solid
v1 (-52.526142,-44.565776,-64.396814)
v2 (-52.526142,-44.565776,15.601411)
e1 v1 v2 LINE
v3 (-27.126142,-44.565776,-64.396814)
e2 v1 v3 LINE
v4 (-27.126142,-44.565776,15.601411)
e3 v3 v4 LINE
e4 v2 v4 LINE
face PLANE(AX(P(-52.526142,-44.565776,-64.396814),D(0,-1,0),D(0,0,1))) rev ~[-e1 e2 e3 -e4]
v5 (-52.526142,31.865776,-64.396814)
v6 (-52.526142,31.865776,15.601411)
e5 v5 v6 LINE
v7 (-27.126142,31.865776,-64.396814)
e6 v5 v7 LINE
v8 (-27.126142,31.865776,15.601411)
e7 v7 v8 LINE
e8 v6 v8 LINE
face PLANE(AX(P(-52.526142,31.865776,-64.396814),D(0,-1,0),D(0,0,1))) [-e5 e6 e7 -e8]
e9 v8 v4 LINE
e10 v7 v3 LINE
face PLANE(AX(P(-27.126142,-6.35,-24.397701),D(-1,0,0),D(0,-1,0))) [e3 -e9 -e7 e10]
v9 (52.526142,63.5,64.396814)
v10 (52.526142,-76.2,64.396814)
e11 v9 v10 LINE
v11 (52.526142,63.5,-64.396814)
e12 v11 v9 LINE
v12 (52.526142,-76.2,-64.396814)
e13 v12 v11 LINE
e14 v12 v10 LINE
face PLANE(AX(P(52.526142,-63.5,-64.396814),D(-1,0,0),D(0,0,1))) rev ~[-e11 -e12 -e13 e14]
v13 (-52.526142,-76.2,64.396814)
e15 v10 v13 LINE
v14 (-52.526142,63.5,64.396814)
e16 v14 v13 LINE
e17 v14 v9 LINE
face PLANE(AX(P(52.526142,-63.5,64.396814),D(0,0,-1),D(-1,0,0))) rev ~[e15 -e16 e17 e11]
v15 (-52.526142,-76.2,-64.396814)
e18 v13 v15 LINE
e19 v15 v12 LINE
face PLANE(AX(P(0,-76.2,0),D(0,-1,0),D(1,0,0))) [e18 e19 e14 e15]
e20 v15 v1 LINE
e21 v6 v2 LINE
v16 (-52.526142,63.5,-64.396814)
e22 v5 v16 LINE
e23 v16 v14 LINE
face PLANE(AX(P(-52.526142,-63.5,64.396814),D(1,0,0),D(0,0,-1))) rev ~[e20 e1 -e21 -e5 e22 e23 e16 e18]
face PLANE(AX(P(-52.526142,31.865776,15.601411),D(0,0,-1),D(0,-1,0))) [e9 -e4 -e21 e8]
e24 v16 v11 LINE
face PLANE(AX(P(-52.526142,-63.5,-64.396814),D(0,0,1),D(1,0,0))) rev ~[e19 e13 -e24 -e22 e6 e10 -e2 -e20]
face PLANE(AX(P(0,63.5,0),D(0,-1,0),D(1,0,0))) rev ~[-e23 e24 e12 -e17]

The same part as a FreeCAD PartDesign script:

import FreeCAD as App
import Part
import Sketcher
from FreeCAD import Vector
Q = App.Units.Quantity

doc = App.newDocument("Part")
body = doc.addObject("PartDesign::Body", "Body")

# Sketch on XZ plane
sketch1 = doc.addObject("Sketcher::SketchObject", "Sketch")
body.addObject(sketch1)
sketch1.AttachmentSupport = (doc.XZ_Plane, [""])
sketch1.MapMode = "FlatFace"
sketch1.addGeometry(Part.LineSegment(Vector(-53, 64, 0), Vector(-53, -64, 0)), False)
sketch1.addGeometry(Part.LineSegment(Vector(-53, -64, 0), Vector(53, -64, 0)), False)
sketch1.addGeometry(Part.LineSegment(Vector(53, -64, 0), Vector(53, 64, 0)), False)
sketch1.addGeometry(Part.LineSegment(Vector(53, 64, 0), Vector(-53, 64, 0)), False)
sketch1.addConstraint(Sketcher.Constraint("Coincident", 0, 2, 1, 1))
sketch1.addConstraint(Sketcher.Constraint("Coincident", 1, 2, 2, 1))
sketch1.addConstraint(Sketcher.Constraint("Coincident", 2, 2, 3, 1))
sketch1.addConstraint(Sketcher.Constraint("Coincident", 3, 2, 0, 1))
sketch1.addConstraint(Sketcher.Constraint("Vertical", 0))
sketch1.addConstraint(Sketcher.Constraint("Horizontal", 1))
sketch1.addConstraint(Sketcher.Constraint("Vertical", 2))
sketch1.addConstraint(Sketcher.Constraint("Horizontal", 3))
sketch1.addConstraint(Sketcher.Constraint("Symmetric", 0, 2, 2, 2, -1, 1))
sketch1.addConstraint(Sketcher.Constraint("DistanceX", 1, 1, 1, 2, Q("105.052285 mm")))
sketch1.addConstraint(Sketcher.Constraint("DistanceY", 0, 2, 0, 1, Q("128.793627 mm")))
pad1 = doc.addObject("PartDesign::Pad", "Pad")
body.addObject(pad1)
pad1.Profile = sketch1
pad1.Length = Q("5 in")
pad1.Midplane = True

# Sketch on XZ plane
sketch2 = doc.addObject("Sketcher::SketchObject", "Sketch001")
body.addObject(sketch2)
sketch2.AttachmentSupport = (doc.XZ_Plane, [""])
sketch2.MapMode = "FlatFace"
sketch2.AttachmentOffset = App.Placement(Vector(0, 0, 2.5 * 25.4), App.Rotation())
sketch2.addGeometry(Part.LineSegment(Vector(53, -64, 0), Vector(53, 64, 0)), False)
sketch2.addGeometry(Part.LineSegment(Vector(53, 64, 0), Vector(-53, 64, 0)), False)
sketch2.addGeometry(Part.LineSegment(Vector(-53, 64, 0), Vector(-53, -64, 0)), False)
sketch2.addGeometry(Part.LineSegment(Vector(-53, -64, 0), Vector(53, -64, 0)), False)
sketch2.addConstraint(Sketcher.Constraint("Coincident", 0, 2, 1, 1))
sketch2.addConstraint(Sketcher.Constraint("Coincident", 1, 2, 2, 1))
sketch2.addConstraint(Sketcher.Constraint("Coincident", 2, 2, 3, 1))
sketch2.addConstraint(Sketcher.Constraint("Coincident", 3, 2, 0, 1))
sketch2.addConstraint(Sketcher.Constraint("Vertical", 0))
sketch2.addConstraint(Sketcher.Constraint("Horizontal", 1))
sketch2.addConstraint(Sketcher.Constraint("Vertical", 2))
sketch2.addConstraint(Sketcher.Constraint("Horizontal", 3))
sketch2.addConstraint(Sketcher.Constraint("Symmetric", 0, 2, 2, 2, -1, 1))
sketch2.addConstraint(Sketcher.Constraint("DistanceX", 1, 2, 1, 1, Q("105.052285 mm")))
sketch2.addConstraint(Sketcher.Constraint("DistanceY", 0, 1, 0, 2, Q("128.793627 mm")))
pad2 = doc.addObject("PartDesign::Pad", "Pad001")
body.addObject(pad2)
pad2.Profile = sketch2
pad2.Length = Q("0.5 in")

# Sketch on YZ plane
sketch3 = doc.addObject("Sketcher::SketchObject", "Sketch002")
body.addObject(sketch3)
sketch3.AttachmentSupport = (doc.YZ_Plane, [""])
sketch3.MapMode = "FlatFace"
sketch3.AttachmentOffset = App.Placement(Vector(0, 0, -52.526142), App.Rotation())
sketch3.addGeometry(Part.LineSegment(Vector(32, 16, 0), Vector(32, -64, 0)), False)
sketch3.addGeometry(Part.LineSegment(Vector(32, -64, 0), Vector(-45, -64, 0)), False)
sketch3.addGeometry(Part.LineSegment(Vector(-45, -64, 0), Vector(-45, 16, 0)), False)
sketch3.addGeometry(Part.LineSegment(Vector(-45, 16, 0), Vector(32, 16, 0)), False)
sketch3.addConstraint(Sketcher.Constraint("Coincident", 0, 2, 1, 1))
sketch3.addConstraint(Sketcher.Constraint("Coincident", 1, 2, 2, 1))
sketch3.addConstraint(Sketcher.Constraint("Coincident", 2, 2, 3, 1))
sketch3.addConstraint(Sketcher.Constraint("Coincident", 3, 2, 0, 1))
sketch3.addConstraint(Sketcher.Constraint("Vertical", 0))
sketch3.addConstraint(Sketcher.Constraint("Horizontal", 1))
sketch3.addConstraint(Sketcher.Constraint("Vertical", 2))
sketch3.addConstraint(Sketcher.Constraint("Horizontal", 3))
sketch3.addConstraint(Sketcher.Constraint("DistanceX", 1, 2, 1, 1, Q("76.431551 mm")))
sketch3.addConstraint(Sketcher.Constraint("DistanceY", 0, 2, 0, 1, Q("79.998225 mm")))
sketch3.addConstraint(Sketcher.Constraint("DistanceY", -1, 1, 2, 2, Q("15.601411 mm")))
sketch3.addConstraint(Sketcher.Constraint("DistanceX", -1, 1, 0, 2, Q("31.865776 mm")))
pocket1 = doc.addObject("PartDesign::Pocket", "Pocket")
body.addObject(pocket1)
pocket1.Profile = sketch3
pocket1.Length = Q("1 in")
pocket1.Reversed = True

doc.recompute()
